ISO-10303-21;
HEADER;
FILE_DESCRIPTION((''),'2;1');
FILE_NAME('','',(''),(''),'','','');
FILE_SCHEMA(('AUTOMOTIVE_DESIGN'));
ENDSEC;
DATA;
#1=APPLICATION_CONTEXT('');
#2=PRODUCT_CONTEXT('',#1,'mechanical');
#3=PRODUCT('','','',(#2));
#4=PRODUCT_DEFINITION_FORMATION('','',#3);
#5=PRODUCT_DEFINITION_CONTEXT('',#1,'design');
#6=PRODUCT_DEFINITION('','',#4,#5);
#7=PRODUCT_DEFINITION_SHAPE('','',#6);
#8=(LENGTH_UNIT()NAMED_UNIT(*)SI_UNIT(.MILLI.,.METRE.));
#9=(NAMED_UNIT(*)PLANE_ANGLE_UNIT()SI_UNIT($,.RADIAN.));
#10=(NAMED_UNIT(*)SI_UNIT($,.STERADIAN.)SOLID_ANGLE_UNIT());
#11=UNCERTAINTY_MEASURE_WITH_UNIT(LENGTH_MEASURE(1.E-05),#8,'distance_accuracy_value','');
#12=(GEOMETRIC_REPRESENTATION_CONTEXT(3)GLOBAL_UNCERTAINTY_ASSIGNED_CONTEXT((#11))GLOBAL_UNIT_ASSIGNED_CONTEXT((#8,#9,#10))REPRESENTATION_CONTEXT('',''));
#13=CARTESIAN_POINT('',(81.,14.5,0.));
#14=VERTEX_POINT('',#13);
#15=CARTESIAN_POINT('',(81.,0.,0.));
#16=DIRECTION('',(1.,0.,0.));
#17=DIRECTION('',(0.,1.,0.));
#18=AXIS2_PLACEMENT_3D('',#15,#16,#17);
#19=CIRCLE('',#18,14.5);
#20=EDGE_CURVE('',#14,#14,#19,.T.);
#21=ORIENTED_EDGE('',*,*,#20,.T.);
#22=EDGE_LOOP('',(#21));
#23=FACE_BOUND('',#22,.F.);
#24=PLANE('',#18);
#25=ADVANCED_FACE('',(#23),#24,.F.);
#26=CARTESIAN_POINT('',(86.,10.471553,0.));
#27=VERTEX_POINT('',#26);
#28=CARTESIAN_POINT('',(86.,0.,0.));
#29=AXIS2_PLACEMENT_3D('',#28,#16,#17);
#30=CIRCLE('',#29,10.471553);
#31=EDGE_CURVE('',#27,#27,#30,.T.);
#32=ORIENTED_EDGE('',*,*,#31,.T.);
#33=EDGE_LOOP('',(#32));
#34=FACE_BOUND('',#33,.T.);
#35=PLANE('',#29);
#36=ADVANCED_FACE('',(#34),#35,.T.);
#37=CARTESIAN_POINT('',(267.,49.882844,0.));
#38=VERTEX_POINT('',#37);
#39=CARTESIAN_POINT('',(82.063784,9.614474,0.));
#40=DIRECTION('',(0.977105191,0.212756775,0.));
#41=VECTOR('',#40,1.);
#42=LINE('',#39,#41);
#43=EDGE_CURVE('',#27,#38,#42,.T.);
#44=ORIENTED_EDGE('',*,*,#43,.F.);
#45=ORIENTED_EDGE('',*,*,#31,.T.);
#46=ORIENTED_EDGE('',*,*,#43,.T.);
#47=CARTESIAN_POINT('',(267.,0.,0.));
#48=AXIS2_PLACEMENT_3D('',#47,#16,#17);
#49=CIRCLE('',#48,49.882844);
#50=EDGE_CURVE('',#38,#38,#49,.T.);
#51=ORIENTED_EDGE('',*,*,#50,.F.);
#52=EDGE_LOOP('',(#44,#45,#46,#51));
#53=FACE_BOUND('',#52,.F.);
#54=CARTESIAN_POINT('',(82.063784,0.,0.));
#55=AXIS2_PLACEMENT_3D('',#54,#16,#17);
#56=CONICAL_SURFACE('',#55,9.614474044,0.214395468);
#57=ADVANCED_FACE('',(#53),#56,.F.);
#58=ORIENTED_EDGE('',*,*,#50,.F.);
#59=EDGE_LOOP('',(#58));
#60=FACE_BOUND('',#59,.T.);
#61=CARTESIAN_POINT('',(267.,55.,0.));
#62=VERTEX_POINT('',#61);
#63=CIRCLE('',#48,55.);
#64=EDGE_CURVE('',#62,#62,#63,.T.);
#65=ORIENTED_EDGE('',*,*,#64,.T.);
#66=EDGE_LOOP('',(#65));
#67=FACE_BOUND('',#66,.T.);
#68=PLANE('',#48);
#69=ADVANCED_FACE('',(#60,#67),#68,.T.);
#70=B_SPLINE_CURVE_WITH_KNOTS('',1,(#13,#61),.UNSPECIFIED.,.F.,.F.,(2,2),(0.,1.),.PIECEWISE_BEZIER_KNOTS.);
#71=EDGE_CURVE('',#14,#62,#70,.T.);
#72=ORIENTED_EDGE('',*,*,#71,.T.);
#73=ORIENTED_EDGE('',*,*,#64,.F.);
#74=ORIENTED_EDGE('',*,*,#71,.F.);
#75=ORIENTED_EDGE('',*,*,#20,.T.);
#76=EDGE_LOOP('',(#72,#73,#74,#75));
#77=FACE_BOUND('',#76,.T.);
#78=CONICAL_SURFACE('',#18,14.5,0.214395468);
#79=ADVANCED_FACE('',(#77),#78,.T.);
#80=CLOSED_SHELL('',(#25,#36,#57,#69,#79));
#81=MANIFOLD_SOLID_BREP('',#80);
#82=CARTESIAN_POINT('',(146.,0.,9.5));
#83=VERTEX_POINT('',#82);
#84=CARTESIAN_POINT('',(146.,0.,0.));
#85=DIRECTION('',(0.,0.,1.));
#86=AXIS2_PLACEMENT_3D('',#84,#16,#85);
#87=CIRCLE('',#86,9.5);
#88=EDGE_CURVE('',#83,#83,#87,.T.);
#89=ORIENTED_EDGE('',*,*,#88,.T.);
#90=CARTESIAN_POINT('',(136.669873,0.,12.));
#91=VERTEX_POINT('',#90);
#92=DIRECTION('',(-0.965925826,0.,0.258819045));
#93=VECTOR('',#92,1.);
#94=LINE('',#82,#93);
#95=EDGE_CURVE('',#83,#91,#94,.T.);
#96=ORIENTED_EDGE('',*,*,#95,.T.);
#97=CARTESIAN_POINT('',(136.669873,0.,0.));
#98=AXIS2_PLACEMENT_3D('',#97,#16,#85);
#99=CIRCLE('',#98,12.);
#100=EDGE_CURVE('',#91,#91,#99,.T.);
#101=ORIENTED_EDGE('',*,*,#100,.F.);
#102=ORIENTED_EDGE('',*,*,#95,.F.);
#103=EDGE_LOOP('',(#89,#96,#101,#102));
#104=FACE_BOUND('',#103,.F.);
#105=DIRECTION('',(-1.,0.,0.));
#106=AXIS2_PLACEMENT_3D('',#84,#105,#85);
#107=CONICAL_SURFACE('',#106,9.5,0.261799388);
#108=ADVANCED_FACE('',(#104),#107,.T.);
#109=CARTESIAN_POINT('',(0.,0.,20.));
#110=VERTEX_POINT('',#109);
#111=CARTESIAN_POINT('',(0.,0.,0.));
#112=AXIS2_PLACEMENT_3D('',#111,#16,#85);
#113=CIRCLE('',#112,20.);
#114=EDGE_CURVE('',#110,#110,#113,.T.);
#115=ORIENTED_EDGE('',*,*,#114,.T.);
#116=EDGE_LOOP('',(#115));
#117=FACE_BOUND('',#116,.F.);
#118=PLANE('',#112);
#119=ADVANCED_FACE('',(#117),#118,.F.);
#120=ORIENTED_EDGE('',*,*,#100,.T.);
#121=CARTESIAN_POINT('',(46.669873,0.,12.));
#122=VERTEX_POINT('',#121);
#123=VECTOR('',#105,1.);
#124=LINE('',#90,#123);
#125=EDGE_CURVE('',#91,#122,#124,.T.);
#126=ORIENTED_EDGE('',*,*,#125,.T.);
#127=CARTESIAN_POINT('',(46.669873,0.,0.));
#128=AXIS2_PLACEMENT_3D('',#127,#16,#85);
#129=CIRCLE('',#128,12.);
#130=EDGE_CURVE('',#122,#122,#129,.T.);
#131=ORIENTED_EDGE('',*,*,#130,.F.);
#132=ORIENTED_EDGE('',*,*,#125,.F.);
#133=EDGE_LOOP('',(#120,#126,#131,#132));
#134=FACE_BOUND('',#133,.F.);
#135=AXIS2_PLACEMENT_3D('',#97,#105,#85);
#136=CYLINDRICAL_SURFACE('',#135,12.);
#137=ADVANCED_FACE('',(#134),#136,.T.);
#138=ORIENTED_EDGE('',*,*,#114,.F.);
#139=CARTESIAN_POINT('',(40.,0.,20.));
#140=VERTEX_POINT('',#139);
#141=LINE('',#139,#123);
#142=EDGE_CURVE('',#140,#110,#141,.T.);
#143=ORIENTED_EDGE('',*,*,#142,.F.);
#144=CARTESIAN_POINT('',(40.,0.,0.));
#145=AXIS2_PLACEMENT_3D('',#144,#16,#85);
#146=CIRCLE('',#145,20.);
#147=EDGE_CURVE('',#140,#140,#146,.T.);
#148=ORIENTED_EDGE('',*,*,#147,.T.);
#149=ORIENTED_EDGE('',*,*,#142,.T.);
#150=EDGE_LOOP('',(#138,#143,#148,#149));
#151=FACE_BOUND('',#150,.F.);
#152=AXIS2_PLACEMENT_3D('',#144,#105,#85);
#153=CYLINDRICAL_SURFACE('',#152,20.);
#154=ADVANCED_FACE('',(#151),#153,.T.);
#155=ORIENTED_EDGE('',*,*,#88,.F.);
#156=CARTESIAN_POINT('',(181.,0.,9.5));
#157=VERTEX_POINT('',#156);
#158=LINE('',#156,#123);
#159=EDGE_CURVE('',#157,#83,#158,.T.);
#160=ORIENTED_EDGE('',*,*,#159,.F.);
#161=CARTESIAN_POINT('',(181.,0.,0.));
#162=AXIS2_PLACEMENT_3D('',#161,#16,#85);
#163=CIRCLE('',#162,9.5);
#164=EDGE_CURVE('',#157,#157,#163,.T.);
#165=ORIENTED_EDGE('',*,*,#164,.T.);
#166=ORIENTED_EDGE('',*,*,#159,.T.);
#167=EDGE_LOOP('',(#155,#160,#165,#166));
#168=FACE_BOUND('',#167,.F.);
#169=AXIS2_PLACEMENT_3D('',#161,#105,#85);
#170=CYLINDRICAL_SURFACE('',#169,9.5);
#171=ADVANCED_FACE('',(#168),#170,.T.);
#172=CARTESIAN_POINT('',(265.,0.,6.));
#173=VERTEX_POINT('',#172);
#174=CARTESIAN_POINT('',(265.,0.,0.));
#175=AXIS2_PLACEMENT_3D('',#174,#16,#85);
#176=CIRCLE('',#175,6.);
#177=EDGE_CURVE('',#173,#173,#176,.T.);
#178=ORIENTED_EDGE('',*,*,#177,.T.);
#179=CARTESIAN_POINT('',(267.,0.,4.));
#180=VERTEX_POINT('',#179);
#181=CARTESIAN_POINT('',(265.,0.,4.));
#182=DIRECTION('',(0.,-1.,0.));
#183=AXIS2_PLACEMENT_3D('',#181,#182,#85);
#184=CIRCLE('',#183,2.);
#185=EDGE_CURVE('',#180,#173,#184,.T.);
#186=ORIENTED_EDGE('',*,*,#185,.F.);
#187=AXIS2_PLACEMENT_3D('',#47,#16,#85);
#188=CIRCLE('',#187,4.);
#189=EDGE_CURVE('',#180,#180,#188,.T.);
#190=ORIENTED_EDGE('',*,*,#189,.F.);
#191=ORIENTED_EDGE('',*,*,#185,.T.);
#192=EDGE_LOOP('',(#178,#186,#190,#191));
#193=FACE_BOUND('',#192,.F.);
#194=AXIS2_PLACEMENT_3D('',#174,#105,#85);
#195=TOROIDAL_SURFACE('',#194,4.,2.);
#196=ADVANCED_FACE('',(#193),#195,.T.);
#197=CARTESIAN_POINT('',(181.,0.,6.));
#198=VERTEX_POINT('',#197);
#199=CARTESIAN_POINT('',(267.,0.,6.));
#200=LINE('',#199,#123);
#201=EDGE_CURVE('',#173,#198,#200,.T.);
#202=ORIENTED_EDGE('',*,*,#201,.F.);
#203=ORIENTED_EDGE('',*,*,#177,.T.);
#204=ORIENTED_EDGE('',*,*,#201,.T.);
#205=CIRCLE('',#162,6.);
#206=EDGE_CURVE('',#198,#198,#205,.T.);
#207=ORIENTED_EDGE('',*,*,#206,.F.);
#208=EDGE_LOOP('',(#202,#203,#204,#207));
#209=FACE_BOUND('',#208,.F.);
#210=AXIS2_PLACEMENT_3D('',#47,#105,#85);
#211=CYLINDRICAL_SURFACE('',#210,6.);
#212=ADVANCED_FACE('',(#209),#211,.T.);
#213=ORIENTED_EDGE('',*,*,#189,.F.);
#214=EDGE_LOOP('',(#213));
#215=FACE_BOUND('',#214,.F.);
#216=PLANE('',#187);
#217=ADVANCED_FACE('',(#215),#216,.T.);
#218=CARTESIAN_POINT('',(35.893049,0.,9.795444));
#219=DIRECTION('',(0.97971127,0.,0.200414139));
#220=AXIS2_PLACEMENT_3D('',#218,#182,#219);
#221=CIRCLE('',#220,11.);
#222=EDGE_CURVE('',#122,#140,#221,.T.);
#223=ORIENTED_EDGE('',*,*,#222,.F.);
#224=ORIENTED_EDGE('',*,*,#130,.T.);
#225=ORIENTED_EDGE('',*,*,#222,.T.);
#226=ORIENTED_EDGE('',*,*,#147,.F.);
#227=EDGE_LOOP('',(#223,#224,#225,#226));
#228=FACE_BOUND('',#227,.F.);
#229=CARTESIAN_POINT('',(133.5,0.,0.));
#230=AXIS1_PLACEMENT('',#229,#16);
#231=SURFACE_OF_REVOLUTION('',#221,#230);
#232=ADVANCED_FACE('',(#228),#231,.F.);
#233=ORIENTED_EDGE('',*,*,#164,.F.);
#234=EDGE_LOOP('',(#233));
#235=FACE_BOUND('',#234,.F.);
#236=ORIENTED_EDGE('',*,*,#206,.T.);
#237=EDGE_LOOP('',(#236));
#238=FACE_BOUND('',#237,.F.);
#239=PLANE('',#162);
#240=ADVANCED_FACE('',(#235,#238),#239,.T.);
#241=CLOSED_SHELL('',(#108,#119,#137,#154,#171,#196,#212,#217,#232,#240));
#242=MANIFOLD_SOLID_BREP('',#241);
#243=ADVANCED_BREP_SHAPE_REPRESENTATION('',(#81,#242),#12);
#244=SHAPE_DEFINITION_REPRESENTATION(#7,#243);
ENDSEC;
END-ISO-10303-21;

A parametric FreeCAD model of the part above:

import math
import FreeCAD as App
import Part
import Sketcher
from FreeCAD import Vector
Q = App.Units.Quantity


def edges_at(feature, points):
    """Names of the edges that pass closest to the given points."""
    edges = feature.Shape.Edges
    near = lambda p: min(range(len(edges)), key=lambda i: edges[i].distToShape(Part.Vertex(*p))[0])
    return sorted({f"Edge{near(p) + 1}" for p in points})


def faces_at(feature, points):
    """Names of the faces that lie closest to the given points."""
    faces = feature.Shape.Faces
    near = lambda p: min(range(len(faces)), key=lambda i: faces[i].distToShape(Part.Vertex(*p))[0])
    return sorted({f"Face{near(p) + 1}" for p in points})

doc = App.newDocument("Part")
params = doc.addObject("Spreadsheet::Sheet", "Params")
for row, (alias, value) in enumerate([
    ("sketch1_radius", "11 mm"),
    ("sketch1_width", "267 mm"),
    ("sketch1_width2", "86 mm"),
    ("sketch1_width3", "35 mm"),
    ("sketch1_width4", "90 mm"),
    ("revolution_angle", "360 deg"),
    ("fillet_radius", "2 mm"),
    ("sketch2_diameter", "29 mm"),
    ("sketch3_diameter", "110 mm"),
    ("thickness_wall", "5 mm"),
], start=1):
    params.set(f"A{row}", alias)
    params.set(f"B{row}", "=" + value)
    params.setAlias(f"B{row}", alias)

body = doc.addObject("PartDesign::Body", "Body")

sketch1 = body.newObject("Sketcher::SketchObject", "Sketch")
sketch1.AttachmentSupport = (doc.getObject("XZ_Plane"), [""])
sketch1.MapMode = "FlatFace"
sketch1.addGeometry(Part.LineSegment(Vector(0, 0, 0), Vector(267, 0, 0)), False)
sketch1.addGeometry(Part.LineSegment(Vector(267, 0, 0), Vector(267, 6, 0)), False)
sketch1.addGeometry(Part.LineSegment(Vector(267, 6, 0), Vector(181, 6, 0)), False)
sketch1.addGeometry(Part.LineSegment(Vector(181, 6, 0), Vector(181, 9.5, 0)), False)
sketch1.addGeometry(Part.LineSegment(Vector(181, 9.5, 0), Vector(146, 9.5, 0)), False)
sketch1.addGeometry(Part.LineSegment(Vector(146, 9.5, 0), Vector(136.7, 12, 0)), False)
sketch1.addGeometry(Part.LineSegment(Vector(136.7, 12, 0), Vector(46.7, 12, 0)), False)
sketch1.addGeometry(Part.ArcOfCircle(Part.Circle(Vector(35.9, 9.8, 0), Vector(0, 0, 1), 11), math.radians(12), math.radians(68)), False)
sketch1.addGeometry(Part.LineSegment(Vector(40, 20, 0), Vector(0, 20, 0)), False)
sketch1.addGeometry(Part.LineSegment(Vector(0, 20, 0), Vector(0, 0, 0)), False)
sketch1.addConstraint(Sketcher.Constraint("Coincident", 0, 2, 1, 1))
sketch1.addConstraint(Sketcher.Constraint("Coincident", 1, 2, 2, 1))
sketch1.addConstraint(Sketcher.Constraint("Coincident", 2, 2, 3, 1))
sketch1.addConstraint(Sketcher.Constraint("Coincident", 3, 2, 4, 1))
sketch1.addConstraint(Sketcher.Constraint("Coincident", 4, 2, 5, 1))
sketch1.addConstraint(Sketcher.Constraint("Coincident", 5, 2, 6, 1))
sketch1.addConstraint(Sketcher.Constraint("Coincident", 6, 2, 7, 1))
sketch1.addConstraint(Sketcher.Constraint("Coincident", 7, 2, 8, 1))
sketch1.addConstraint(Sketcher.Constraint("Coincident", 8, 2, 9, 1))
sketch1.addConstraint(Sketcher.Constraint("Coincident", 9, 2, 0, 1))
sketch1.addConstraint(Sketcher.Constraint("Horizontal", 0))
sketch1.addConstraint(Sketcher.Constraint("Vertical", 1))
sketch1.addConstraint(Sketcher.Constraint("Horizontal", 2))
sketch1.addConstraint(Sketcher.Constraint("Vertical", 3))
sketch1.addConstraint(Sketcher.Constraint("Horizontal", 4))
sketch1.addConstraint(Sketcher.Constraint("Horizontal", 6))
sketch1.addConstraint(Sketcher.Constraint("Horizontal", 8))
sketch1.addConstraint(Sketcher.Constraint("Vertical", 9))
sketch1.addConstraint(Sketcher.Constraint("Coincident", 9, 2, -1, 1))
sketch1.addConstraint(Sketcher.Constraint("Radius", 7, 11.0))
sketch1.addConstraint(Sketcher.Constraint("DistanceX", 0, 1, 0, 2, 267.0))
sketch1.addConstraint(Sketcher.Constraint("DistanceX", 2, 2, 2, 1, 86.0))
sketch1.addConstraint(Sketcher.Constraint("DistanceX", 4, 2, 4, 1, 35.0))
sketch1.addConstraint(Sketcher.Constraint("DistanceX", 6, 2, 6, 1, 90.0))
sketch1.addConstraint(Sketcher.Constraint("DistanceX", 8, 2, 8, 1, 40.0))
sketch1.addConstraint(Sketcher.Constraint("DistanceY", 1, 1, 1, 2, 6.0))
sketch1.addConstraint(Sketcher.Constraint("DistanceY", 9, 2, 9, 1, 20.0))
sketch1.addConstraint(Sketcher.Constraint("Angle", 5, Q("165 deg")))
sketch1.addConstraint(Sketcher.Constraint("DistanceY", 3, 1, 3, 2, 3.5))
sketch1.addConstraint(Sketcher.Constraint("DistanceY", -1, 1, 5, 2, 12.0))
sketch1.setExpression("Constraints[19]", "Params.sketch1_radius")
sketch1.setExpression("Constraints[20]", "Params.sketch1_width")
sketch1.setExpression("Constraints[21]", "Params.sketch1_width2")
sketch1.setExpression("Constraints[22]", "Params.sketch1_width3")
sketch1.setExpression("Constraints[23]", "Params.sketch1_width4")
revolution = body.newObject("PartDesign::Revolution", "Revolution")
revolution.Profile = sketch1
revolution.ReferenceAxis = (sketch1, ["H_Axis"])
revolution.setExpression("Angle", "Params.revolution_angle")
doc.recompute()

fillet = body.newObject("PartDesign::Fillet", "Fillet")
fillet.Base = (revolution, edges_at(revolution, [(267, 0, -6)]))
fillet.setExpression("Radius", "Params.fillet_radius")
body2 = doc.addObject("PartDesign::Body", "Body001")

sketch2 = body2.newObject("Sketcher::SketchObject", "Sketch001")
sketch2.AttachmentSupport = (doc.getObject("YZ_Plane001"), [""])
sketch2.MapMode = "FlatFace"
sketch2.AttachmentOffset = App.Placement(Vector(0, 0, 81), App.Rotation())
sketch2.addGeometry(Part.Circle(Vector(0, 0, 0), Vector(0, 0, 1), 14), False)
sketch2.addConstraint(Sketcher.Constraint("Coincident", 0, 3, -1, 1))
sketch2.addConstraint(Sketcher.Constraint("Diameter", 0, 29.0))
sketch2.setExpression("Constraints[1]", "Params.sketch2_diameter")

sketch3 = body2.newObject("Sketcher::SketchObject", "Sketch002")
sketch3.AttachmentSupport = (doc.getObject("YZ_Plane001"), [""])
sketch3.MapMode = "FlatFace"
sketch3.AttachmentOffset = App.Placement(Vector(0, 0, 267), App.Rotation())
sketch3.addGeometry(Part.Circle(Vector(0, 0, 0), Vector(0, 0, 1), 55), False)
sketch3.addConstraint(Sketcher.Constraint("Coincident", 0, 3, -1, 1))
sketch3.addConstraint(Sketcher.Constraint("Diameter", 0, 110.0))
sketch3.setExpression("Constraints[1]", "Params.sketch3_diameter")

additiveloft = body2.newObject("PartDesign::AdditiveLoft", "AdditiveLoft")
additiveloft.Profile = sketch2
additiveloft.Sections = [sketch3]
doc.recompute()

thickness = body2.newObject("PartDesign::Thickness", "Thickness")
thickness.Base = (additiveloft, faces_at(additiveloft, [(267, 0, 0)]))
thickness.setExpression("Value", "Params.thickness_wall")
thickness.Reversed = True
thickness.Join = "Intersection"

doc.recompute()
